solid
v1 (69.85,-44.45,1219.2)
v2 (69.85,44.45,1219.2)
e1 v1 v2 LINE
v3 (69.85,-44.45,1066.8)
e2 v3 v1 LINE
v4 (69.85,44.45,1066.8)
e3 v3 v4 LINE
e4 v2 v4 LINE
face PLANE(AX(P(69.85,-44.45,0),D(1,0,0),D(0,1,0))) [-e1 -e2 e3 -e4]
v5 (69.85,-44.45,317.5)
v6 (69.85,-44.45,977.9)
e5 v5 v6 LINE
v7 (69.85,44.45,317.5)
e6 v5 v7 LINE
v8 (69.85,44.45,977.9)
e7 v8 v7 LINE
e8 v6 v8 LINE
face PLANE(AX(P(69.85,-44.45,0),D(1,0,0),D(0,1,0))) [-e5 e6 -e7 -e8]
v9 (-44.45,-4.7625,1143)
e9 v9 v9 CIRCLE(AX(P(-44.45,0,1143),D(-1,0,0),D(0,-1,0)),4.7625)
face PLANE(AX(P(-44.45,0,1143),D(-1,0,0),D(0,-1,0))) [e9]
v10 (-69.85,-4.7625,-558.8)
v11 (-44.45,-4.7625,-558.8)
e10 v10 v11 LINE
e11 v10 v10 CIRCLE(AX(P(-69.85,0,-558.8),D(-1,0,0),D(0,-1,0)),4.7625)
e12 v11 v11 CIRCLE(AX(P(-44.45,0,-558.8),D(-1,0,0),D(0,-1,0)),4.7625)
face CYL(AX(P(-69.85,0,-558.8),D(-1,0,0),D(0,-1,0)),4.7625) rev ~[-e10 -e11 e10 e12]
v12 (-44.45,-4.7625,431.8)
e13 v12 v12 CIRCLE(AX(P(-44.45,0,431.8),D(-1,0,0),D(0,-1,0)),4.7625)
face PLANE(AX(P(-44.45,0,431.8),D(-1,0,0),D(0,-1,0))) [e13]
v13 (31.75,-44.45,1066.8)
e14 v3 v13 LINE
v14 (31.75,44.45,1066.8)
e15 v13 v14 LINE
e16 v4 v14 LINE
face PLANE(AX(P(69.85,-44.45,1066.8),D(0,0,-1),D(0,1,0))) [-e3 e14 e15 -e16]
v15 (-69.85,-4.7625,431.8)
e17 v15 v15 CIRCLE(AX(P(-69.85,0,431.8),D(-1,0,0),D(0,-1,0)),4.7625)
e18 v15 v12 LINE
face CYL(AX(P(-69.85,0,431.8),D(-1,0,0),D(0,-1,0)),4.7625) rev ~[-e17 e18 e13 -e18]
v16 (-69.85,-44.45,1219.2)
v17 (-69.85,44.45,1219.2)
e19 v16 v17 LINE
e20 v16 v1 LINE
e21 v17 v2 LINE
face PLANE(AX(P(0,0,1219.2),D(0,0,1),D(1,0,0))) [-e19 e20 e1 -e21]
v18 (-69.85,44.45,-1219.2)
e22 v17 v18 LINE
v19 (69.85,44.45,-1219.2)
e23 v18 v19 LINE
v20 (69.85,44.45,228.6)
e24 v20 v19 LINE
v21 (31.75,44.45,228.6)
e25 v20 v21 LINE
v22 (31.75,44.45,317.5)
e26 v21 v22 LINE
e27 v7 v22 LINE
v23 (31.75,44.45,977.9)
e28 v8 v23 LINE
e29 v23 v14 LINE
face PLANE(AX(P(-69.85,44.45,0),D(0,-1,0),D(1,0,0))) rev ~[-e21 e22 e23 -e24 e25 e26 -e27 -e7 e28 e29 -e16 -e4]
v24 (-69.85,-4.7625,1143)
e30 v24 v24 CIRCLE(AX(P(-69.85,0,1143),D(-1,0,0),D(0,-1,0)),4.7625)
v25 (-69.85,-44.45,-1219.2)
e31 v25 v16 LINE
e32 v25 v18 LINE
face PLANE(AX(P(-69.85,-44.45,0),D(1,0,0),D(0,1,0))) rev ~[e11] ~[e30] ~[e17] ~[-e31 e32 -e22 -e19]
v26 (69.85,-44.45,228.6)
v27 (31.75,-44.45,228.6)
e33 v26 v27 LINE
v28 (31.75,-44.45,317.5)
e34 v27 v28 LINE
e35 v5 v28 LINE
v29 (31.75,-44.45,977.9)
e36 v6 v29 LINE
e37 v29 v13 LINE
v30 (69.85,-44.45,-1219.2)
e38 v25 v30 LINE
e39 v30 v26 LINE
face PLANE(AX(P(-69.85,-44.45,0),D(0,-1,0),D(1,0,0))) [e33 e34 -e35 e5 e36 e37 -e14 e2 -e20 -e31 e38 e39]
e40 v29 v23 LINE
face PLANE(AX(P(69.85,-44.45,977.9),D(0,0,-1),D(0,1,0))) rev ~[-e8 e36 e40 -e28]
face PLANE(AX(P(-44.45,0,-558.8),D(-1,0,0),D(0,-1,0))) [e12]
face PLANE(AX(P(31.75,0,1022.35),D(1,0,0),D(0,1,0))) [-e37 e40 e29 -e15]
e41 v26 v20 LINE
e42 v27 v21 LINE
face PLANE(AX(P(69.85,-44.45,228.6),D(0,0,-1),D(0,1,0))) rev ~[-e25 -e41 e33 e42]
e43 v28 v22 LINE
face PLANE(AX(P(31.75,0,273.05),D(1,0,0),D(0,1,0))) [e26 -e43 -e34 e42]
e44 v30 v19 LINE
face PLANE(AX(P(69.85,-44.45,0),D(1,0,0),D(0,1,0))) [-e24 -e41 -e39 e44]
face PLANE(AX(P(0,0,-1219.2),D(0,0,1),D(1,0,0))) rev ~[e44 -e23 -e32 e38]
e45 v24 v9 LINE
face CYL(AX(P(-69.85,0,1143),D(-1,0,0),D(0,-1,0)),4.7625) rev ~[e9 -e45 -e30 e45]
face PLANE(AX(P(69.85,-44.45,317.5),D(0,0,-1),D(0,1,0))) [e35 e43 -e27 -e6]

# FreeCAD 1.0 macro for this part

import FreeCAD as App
import Part
import Sketcher

V = App.Vector
Q = App.Units.Quantity

doc = App.newDocument("Part")
params = doc.addObject("Spreadsheet::Sheet", "Params")
for row, (alias, value) in enumerate([
    ("sketch1_width", "5.5 in"),
    ("sketch1_height", "3.5 in"),
    ("pad1_length", "96 in"),
    ("sketch2_width", "3.5 in"),
    ("pocket1_length", "1.5 in"),
    ("sketch3_diameter", "0.375 in"),
    ("pocket2_length", "1 in"),
], start=1):
    params.set(f"A{row}", alias)
    params.set(f"B{row}", "=" + value)
    params.setAlias(f"B{row}", alias)

body = doc.addObject("PartDesign::Body", "Body")

sketch1 = body.newObject("Sketcher::SketchObject", "Sketch")
sketch1.AttachmentSupport = (doc.getObject("XY_Plane"), [""])
sketch1.MapMode = "FlatFace"
sketch1.addGeometry(Part.LineSegment(V(-70, 44, 0), V(-70, -44, 0)), False)
sketch1.addGeometry(Part.LineSegment(V(-70, -44, 0), V(70, -44, 0)), False)
sketch1.addGeometry(Part.LineSegment(V(70, -44, 0), V(70, 44, 0)), False)
sketch1.addGeometry(Part.LineSegment(V(70, 44, 0), V(-70, 44, 0)), False)
sketch1.addConstraint(Sketcher.Constraint("Coincident", 0, 2, 1, 1))
sketch1.addConstraint(Sketcher.Constraint("Coincident", 1, 2, 2, 1))
sketch1.addConstraint(Sketcher.Constraint("Coincident", 2, 2, 3, 1))
sketch1.addConstraint(Sketcher.Constraint("Coincident", 3, 2, 0, 1))
sketch1.addConstraint(Sketcher.Constraint("Vertical", 0))
sketch1.addConstraint(Sketcher.Constraint("Horizontal", 1))
sketch1.addConstraint(Sketcher.Constraint("Vertical", 2))
sketch1.addConstraint(Sketcher.Constraint("Horizontal", 3))
sketch1.addConstraint(Sketcher.Constraint("Symmetric", 0, 2, 2, 2, -1, 1))
sketch1.addConstraint(Sketcher.Constraint("DistanceX", 1, 1, 1, 2, Q("5.5 in")))
sketch1.addConstraint(Sketcher.Constraint("DistanceY", 0, 2, 0, 1, Q("3.5 in")))
sketch1.setExpression("Constraints[9]", "Params.sketch1_width")
sketch1.setExpression("Constraints[10]", "Params.sketch1_height")
pad1 = body.newObject("PartDesign::Pad", "Pad")
pad1.Profile = sketch1
pad1.setExpression("Length", "Params.pad1_length")
pad1.Midplane = True

sketch2 = body.newObject("Sketcher::SketchObject", "Sketch001")
sketch2.AttachmentSupport = (doc.getObject("YZ_Plane"), [""])
sketch2.MapMode = "FlatFace"
sketch2.AttachmentOffset = App.Placement(V(0, 0, 2.75 * 25.4), App.Rotation())
sketch2.addGeometry(Part.LineSegment(V(-44, 1067, 0), V(-44, 978, 0)), False)
sketch2.addGeometry(Part.LineSegment(V(-44, 978, 0), V(44, 978, 0)), False)
sketch2.addGeometry(Part.LineSegment(V(44, 978, 0), V(44, 1067, 0)), False)
sketch2.addGeometry(Part.LineSegment(V(44, 1067, 0), V(-44, 1067, 0)), False)
sketch2.addGeometry(Part.LineSegment(V(-44, 318, 0), V(-44, 229, 0)), False)
sketch2.addGeometry(Part.LineSegment(V(-44, 229, 0), V(44, 229, 0)), False)
sketch2.addGeometry(Part.LineSegment(V(44, 229, 0), V(44, 318, 0)), False)
sketch2.addGeometry(Part.LineSegment(V(44, 318, 0), V(-44, 318, 0)), False)
sketch2.addConstraint(Sketcher.Constraint("Coincident", 0, 2, 1, 1))
sketch2.addConstraint(Sketcher.Constraint("Coincident", 1, 2, 2, 1))
sketch2.addConstraint(Sketcher.Constraint("Coincident", 2, 2, 3, 1))
sketch2.addConstraint(Sketcher.Constraint("Coincident", 3, 2, 0, 1))
sketch2.addConstraint(Sketcher.Constraint("Coincident", 4, 2, 5, 1))
sketch2.addConstraint(Sketcher.Constraint("Coincident", 5, 2, 6, 1))
sketch2.addConstraint(Sketcher.Constraint("Coincident", 6, 2, 7, 1))
sketch2.addConstraint(Sketcher.Constraint("Coincident", 7, 2, 4, 1))
sketch2.addConstraint(Sketcher.Constraint("Vertical", 0))
sketch2.addConstraint(Sketcher.Constraint("Horizontal", 1))
sketch2.addConstraint(Sketcher.Constraint("Vertical", 2))
sketch2.addConstraint(Sketcher.Constraint("Horizontal", 3))
sketch2.addConstraint(Sketcher.Constraint("Vertical", 4))
sketch2.addConstraint(Sketcher.Constraint("Horizontal", 5))
sketch2.addConstraint(Sketcher.Constraint("Vertical", 6))
sketch2.addConstraint(Sketcher.Constraint("Horizontal", 7))
sketch2.addConstraint(Sketcher.Constraint("Vertical", 3, 2, 4, 2))
sketch2.addConstraint(Sketcher.Constraint("Vertical", 2, 2, 5, 2))
sketch2.addConstraint(Sketcher.Constraint("Equal", 7, 0))
sketch2.addConstraint(Sketcher.Constraint("Equal", 2, 4))
sketch2.addConstraint(Sketcher.Constraint("DistanceX", 1, 1, 1, 2, Q("3.5 in")))
sketch2.addConstraint(Sketcher.Constraint("DistanceY", -1, 1, 2, 2, Q("42 in")))
sketch2.addConstraint(Sketcher.Constraint("DistanceY", -1, 1, 4, 2, Q("9 in")))
sketch2.addConstraint(Sketcher.Constraint("DistanceX", 0, 2, -1, 1, Q("1.75 in")))
sketch2.setExpression("Constraints[20]", "Params.sketch2_width")
pocket1 = body.newObject("PartDesign::Pocket", "Pocket")
pocket1.Profile = sketch2
pocket1.setExpression("Length", "Params.pocket1_length")

sketch3 = body.newObject("Sketcher::SketchObject", "Sketch002")
sketch3.AttachmentSupport = (doc.getObject("YZ_Plane"), [""])
sketch3.MapMode = "FlatFace"
sketch3.AttachmentOffset = App.Placement(V(0, 0, -2.75 * 25.4), App.Rotation())
sketch3.addGeometry(Part.Circle(V(0, -558.8, 0), V(0, 0, 1), 4.8), False)
sketch3.addGeometry(Part.Circle(V(0, 1143, 0), V(0, 0, 1), 4.8), False)
sketch3.addGeometry(Part.Circle(V(0, 431.8, 0), V(0, 0, 1), 4.8), False)
sketch3.addConstraint(Sketcher.Constraint("Equal", 0, 1))
sketch3.addConstraint(Sketcher.Constraint("Equal", 1, 2))
sketch3.addConstraint(Sketcher.Constraint("PointOnObject", 0, 3, -2))
sketch3.addConstraint(Sketcher.Constraint("PointOnObject", 1, 3, -2))
sketch3.addConstraint(Sketcher.Constraint("PointOnObject", 2, 3, -2))
sketch3.addConstraint(Sketcher.Constraint("Diameter", 0, Q("0.375 in")))
sketch3.addConstraint(Sketcher.Constraint("DistanceY", 0, 3, -1, 1, Q("22 in")))
sketch3.addConstraint(Sketcher.Constraint("DistanceY", -1, 1, 1, 3, Q("45 in")))
sketch3.addConstraint(Sketcher.Constraint("DistanceY", -1, 1, 2, 3, Q("17 in")))
sketch3.setExpression("Constraints[5]", "Params.sketch3_diameter")
pocket2 = body.newObject("PartDesign::Pocket", "Pocket001")
pocket2.Profile = sketch3
pocket2.setExpression("Length", "Params.pocket2_length")
pocket2.Reversed = True

doc.recompute()
